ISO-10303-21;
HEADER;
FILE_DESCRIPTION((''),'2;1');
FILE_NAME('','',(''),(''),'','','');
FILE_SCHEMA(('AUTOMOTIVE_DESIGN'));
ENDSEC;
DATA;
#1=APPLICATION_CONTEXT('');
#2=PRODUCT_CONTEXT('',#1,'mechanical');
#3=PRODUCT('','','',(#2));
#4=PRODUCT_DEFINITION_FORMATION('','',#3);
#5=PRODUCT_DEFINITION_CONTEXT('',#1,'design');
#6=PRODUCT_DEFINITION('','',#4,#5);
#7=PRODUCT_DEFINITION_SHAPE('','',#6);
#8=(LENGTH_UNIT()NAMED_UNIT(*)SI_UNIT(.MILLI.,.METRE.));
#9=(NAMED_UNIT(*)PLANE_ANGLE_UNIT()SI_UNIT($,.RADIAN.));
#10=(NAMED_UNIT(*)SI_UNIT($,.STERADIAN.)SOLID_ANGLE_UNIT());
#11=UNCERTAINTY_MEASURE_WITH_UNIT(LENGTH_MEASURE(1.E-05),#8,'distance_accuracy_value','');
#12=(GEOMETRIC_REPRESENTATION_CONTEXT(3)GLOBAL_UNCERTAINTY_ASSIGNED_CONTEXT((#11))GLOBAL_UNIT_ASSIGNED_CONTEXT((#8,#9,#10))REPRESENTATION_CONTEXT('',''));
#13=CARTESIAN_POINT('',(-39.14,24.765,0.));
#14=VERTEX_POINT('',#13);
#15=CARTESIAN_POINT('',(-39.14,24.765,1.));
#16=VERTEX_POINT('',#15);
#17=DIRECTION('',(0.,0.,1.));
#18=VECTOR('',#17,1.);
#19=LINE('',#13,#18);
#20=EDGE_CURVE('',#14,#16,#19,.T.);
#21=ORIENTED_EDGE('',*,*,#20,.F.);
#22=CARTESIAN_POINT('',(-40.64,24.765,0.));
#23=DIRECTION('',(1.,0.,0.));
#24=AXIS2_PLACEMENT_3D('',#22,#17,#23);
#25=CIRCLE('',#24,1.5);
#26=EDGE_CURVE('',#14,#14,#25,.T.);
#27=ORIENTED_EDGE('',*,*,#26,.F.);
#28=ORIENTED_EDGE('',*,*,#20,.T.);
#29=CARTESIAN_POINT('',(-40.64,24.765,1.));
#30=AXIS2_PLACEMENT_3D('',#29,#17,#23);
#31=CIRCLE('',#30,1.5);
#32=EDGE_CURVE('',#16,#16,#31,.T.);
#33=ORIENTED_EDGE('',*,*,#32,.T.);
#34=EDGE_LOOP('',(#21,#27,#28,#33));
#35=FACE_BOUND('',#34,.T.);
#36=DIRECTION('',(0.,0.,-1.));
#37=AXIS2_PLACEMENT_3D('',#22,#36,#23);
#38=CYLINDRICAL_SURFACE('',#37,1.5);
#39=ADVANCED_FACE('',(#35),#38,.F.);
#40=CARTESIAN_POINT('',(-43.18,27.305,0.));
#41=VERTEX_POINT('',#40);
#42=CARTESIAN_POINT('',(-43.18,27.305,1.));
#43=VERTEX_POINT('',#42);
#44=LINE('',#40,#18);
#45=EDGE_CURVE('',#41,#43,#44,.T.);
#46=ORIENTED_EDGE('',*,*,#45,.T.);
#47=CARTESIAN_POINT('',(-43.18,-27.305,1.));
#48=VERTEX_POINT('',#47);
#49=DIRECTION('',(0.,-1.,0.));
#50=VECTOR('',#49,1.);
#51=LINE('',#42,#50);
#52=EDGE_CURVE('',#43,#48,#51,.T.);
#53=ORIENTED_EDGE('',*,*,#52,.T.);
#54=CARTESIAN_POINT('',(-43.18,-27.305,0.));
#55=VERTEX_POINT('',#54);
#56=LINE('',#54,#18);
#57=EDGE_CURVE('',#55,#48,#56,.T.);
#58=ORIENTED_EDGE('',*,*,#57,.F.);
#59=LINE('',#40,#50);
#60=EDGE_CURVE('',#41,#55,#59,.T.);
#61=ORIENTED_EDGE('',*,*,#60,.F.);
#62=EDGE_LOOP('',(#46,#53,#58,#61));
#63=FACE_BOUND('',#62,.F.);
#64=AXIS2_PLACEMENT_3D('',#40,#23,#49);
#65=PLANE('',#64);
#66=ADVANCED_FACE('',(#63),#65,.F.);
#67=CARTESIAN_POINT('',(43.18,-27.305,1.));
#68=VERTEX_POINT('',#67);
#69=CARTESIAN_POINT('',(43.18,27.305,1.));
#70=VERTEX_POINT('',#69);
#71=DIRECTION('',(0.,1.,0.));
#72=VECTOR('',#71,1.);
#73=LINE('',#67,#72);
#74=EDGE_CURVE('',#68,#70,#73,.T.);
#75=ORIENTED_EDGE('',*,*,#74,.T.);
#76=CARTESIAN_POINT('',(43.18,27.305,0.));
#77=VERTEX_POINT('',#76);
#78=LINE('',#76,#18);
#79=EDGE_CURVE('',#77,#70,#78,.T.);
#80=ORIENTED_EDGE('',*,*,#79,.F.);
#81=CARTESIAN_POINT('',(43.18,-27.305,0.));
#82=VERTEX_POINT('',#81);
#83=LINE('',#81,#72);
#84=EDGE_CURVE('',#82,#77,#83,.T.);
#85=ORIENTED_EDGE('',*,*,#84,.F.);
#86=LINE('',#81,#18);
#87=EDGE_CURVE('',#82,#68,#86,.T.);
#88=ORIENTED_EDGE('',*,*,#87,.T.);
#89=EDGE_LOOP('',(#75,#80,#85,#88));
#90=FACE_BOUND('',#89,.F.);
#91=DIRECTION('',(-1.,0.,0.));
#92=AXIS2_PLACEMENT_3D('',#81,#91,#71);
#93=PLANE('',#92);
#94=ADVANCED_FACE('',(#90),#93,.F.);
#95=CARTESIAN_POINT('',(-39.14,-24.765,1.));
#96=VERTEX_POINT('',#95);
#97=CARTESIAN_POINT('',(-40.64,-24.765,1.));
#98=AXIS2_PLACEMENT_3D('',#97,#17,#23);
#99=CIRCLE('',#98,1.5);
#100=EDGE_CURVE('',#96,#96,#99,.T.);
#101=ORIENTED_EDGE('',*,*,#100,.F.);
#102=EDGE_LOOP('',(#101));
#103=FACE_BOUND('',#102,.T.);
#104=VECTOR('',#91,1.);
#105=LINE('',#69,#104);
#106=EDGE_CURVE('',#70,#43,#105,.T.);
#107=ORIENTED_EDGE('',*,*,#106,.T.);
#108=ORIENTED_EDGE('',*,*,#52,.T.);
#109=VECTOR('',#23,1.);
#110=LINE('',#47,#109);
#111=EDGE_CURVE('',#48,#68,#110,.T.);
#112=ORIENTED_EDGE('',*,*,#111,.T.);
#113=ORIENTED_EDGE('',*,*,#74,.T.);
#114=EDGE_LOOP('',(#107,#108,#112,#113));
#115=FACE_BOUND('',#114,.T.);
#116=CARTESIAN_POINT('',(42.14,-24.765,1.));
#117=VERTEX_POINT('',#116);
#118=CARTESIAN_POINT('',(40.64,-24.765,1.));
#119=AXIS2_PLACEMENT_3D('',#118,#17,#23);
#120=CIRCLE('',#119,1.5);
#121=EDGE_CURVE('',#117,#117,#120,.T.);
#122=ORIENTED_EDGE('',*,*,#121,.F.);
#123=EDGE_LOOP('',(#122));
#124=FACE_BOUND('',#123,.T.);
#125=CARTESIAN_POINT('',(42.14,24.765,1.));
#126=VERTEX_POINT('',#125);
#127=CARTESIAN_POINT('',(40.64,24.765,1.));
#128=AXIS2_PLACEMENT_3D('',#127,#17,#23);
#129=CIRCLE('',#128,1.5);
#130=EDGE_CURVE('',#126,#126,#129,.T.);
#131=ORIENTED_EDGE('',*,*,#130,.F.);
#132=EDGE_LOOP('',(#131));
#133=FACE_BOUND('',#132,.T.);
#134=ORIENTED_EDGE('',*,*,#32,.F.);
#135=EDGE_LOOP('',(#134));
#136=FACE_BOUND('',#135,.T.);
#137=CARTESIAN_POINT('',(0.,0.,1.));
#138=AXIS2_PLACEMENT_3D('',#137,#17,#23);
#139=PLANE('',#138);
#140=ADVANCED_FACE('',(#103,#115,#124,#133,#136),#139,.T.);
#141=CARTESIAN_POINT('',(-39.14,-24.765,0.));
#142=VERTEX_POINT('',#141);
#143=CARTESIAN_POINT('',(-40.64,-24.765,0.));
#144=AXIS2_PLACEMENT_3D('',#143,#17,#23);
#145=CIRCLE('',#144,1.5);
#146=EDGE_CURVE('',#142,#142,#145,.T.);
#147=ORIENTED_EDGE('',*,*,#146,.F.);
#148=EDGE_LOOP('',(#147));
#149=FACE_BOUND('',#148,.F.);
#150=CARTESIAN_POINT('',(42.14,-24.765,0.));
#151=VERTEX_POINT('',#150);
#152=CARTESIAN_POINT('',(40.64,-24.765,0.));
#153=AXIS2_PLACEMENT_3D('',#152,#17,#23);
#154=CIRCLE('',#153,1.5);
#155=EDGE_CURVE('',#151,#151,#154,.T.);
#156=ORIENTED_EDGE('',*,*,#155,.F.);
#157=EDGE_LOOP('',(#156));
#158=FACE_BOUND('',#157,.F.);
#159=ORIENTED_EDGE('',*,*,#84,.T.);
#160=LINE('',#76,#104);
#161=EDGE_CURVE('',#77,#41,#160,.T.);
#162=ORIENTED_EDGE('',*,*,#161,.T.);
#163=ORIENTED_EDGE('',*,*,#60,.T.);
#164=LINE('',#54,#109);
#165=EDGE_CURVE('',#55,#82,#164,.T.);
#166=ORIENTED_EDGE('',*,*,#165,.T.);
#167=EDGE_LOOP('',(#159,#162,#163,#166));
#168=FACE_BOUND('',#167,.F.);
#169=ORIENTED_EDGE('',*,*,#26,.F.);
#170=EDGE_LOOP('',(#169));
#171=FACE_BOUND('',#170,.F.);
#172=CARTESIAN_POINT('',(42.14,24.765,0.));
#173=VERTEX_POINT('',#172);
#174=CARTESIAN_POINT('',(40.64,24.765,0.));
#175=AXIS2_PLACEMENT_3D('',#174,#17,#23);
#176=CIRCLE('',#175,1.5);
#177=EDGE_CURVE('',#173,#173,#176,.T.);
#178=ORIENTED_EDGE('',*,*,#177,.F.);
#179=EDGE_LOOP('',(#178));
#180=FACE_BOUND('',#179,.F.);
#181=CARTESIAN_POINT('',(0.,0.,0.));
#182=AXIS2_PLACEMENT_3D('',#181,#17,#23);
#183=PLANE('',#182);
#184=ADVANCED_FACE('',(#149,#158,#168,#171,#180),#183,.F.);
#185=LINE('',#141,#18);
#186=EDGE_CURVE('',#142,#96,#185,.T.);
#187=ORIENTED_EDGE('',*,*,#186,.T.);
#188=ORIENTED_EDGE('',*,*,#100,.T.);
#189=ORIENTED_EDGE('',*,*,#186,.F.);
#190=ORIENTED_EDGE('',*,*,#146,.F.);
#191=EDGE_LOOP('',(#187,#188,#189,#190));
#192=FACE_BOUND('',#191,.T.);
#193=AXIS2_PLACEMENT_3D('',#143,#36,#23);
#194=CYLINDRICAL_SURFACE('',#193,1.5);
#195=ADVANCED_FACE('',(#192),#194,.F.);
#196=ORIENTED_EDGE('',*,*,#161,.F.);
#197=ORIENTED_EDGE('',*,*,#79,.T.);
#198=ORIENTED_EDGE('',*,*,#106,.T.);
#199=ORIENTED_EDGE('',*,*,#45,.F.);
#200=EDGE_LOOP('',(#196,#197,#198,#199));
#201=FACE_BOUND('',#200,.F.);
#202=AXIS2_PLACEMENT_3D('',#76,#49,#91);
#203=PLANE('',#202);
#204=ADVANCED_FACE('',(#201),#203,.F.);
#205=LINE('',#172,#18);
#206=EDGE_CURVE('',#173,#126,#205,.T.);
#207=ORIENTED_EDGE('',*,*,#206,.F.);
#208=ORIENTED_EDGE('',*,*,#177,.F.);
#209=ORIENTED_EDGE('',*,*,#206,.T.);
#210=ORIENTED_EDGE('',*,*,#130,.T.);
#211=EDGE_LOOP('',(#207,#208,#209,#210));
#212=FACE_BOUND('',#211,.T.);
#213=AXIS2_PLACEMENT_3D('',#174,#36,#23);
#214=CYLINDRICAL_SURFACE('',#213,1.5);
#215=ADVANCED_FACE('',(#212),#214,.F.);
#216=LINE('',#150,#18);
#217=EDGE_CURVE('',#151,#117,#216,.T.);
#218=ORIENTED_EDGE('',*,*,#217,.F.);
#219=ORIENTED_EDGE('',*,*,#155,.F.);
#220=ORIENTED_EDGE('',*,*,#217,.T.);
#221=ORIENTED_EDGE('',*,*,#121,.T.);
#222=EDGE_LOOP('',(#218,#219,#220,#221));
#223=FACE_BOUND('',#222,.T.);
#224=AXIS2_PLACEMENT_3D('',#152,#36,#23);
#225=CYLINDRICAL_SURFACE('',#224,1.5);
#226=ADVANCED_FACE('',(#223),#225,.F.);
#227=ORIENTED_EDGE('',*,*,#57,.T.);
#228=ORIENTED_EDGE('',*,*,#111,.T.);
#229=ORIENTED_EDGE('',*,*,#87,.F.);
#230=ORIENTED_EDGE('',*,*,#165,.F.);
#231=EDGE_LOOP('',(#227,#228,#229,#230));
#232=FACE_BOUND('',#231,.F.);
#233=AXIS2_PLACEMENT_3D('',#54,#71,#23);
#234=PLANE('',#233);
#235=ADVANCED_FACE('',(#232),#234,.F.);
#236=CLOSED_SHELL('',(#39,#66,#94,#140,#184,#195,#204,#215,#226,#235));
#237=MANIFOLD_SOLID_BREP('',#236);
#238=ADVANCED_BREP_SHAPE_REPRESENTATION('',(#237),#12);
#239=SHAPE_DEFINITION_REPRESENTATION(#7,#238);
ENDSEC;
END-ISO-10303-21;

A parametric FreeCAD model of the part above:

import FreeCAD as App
import Part
import Sketcher
Q = App.Units.Quantity


def add_polygon(sketch, points):
    """Adds a closed chain of lines whose ends are joined by coincident constraints."""
    first, n = sketch.GeometryCount, len(points)
    for a, b in zip(points, points[1:] + points[:1]):
        sketch.addGeometry(Part.LineSegment(App.Vector(*a, 0), App.Vector(*b, 0)), False)
    for i in range(n):
        sketch.addConstraint(Sketcher.Constraint("Coincident", first + i, 2, first + (i + 1) % n, 1))

doc = App.newDocument("Part")
body = doc.addObject("PartDesign::Body", "Body")

# Sketch on XY plane
sketch1 = body.newObject("Sketcher::SketchObject", "Sketch")
sketch1.AttachmentSupport = (doc.getObject("XY_Plane"), [""])
sketch1.MapMode = "FlatFace"
add_polygon(sketch1, [(-43.2, 27.3), (-43.2, -27.3), (43.2, -27.3), (43.2, 27.3)])  # lines 0-3
sketch1.addGeometry(Part.Circle(App.Vector(-40.6, -24.8, 0), App.Vector(0, 0, 1), 1.5), False)  # 4
sketch1.addGeometry(Part.Circle(App.Vector(40.6, -24.8, 0), App.Vector(0, 0, 1), 1.5), False)  # 5
sketch1.addGeometry(Part.Circle(App.Vector(-40.6, 24.8, 0), App.Vector(0, 0, 1), 1.5), False)  # 6
sketch1.addGeometry(Part.Circle(App.Vector(40.6, 24.8, 0), App.Vector(0, 0, 1), 1.5), False)  # 7
sketch1.addConstraint(Sketcher.Constraint("Vertical", 0))
sketch1.addConstraint(Sketcher.Constraint("Horizontal", 1))
sketch1.addConstraint(Sketcher.Constraint("Vertical", 2))
sketch1.addConstraint(Sketcher.Constraint("Horizontal", 3))
sketch1.addConstraint(Sketcher.Constraint("Equal", 4, 5))
sketch1.addConstraint(Sketcher.Constraint("Equal", 5, 6))
sketch1.addConstraint(Sketcher.Constraint("Equal", 6, 7))
sketch1.addConstraint(Sketcher.Constraint("Symmetric", 5, 3, 6, 3, -1, 1))
sketch1.addConstraint(Sketcher.Constraint("Symmetric", 4, 3, 7, 3, -1, 1))
sketch1.addConstraint(Sketcher.Constraint("Symmetric", 0, 2, 2, 2, -1, 1))
sketch1.addConstraint(Sketcher.Constraint("Symmetric", 4, 3, 5, 3, -2))
sketch1.addConstraint(Sketcher.Constraint("DistanceX", 1, 1, 1, 2, Q("3.4 in")))
sketch1.addConstraint(Sketcher.Constraint("Diameter", 4, Q("0.1181 in")))
sketch1.addConstraint(Sketcher.Constraint("DistanceY", 0, 2, 0, 1, Q("2.15 in")))
sketch1.addConstraint(Sketcher.Constraint("DistanceX", 0, 2, 4, 3, Q("0.1 in")))
sketch1.addConstraint(Sketcher.Constraint("DistanceY", 0, 2, 4, 3, Q("0.1 in")))
pad1 = body.newObject("PartDesign::Pad", "Pad")
pad1.Profile = sketch1
pad1.Length = 1

doc.recompute()
